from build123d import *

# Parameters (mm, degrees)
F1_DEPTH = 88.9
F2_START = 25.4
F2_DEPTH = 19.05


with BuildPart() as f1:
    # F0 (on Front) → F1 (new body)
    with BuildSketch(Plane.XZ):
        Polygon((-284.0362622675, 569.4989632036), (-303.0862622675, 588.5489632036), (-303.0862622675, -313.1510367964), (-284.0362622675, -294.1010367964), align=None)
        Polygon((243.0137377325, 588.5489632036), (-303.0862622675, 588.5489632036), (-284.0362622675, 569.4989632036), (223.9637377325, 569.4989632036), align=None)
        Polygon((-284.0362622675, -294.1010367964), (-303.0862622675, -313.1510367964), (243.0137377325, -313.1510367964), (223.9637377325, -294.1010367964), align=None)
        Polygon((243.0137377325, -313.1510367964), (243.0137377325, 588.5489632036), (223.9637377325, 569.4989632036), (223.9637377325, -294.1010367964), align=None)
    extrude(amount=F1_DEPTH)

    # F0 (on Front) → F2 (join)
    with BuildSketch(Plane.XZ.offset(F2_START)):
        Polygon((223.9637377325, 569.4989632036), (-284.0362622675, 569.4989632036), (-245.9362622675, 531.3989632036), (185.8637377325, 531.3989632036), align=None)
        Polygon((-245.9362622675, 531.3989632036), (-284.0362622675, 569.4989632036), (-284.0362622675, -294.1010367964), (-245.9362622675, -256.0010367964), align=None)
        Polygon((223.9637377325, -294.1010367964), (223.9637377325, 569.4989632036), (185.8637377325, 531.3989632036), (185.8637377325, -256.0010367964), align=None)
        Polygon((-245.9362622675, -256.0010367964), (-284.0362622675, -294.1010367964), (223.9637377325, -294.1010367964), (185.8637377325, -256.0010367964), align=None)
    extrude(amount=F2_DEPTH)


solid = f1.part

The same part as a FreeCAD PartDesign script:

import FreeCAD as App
import Part
import Sketcher
from FreeCAD import Vector
Q = App.Units.Quantity

doc = App.newDocument("Part")
body = doc.addObject("PartDesign::Body", "Body")

sketch1 = body.newObject("Sketcher::SketchObject", "Sketch")
sketch1.AttachmentSupport = (doc.getObject("XZ_Plane"), [""])
sketch1.MapMode = "FlatFace"
sketch1.addGeometry([
    Part.LineSegment(Vector(-303, 589, 0), Vector(-303, -313, 0)),
    Part.LineSegment(Vector(-303, -313, 0), Vector(243, -313, 0)),
    Part.LineSegment(Vector(243, -313, 0), Vector(243, 589, 0)),
    Part.LineSegment(Vector(243, 589, 0), Vector(-303, 589, 0)),
    Part.LineSegment(Vector(224, -294, 0), Vector(-284, -294, 0)),
    Part.LineSegment(Vector(-284, -294, 0), Vector(-284, 569, 0)),
    Part.LineSegment(Vector(-284, 569, 0), Vector(224, 569, 0)),
    Part.LineSegment(Vector(224, 569, 0), Vector(224, -294, 0)),
], False)
sketch1.addConstraint([
    Sketcher.Constraint("Coincident", 0, 2, 1, 1),
    Sketcher.Constraint("Coincident", 1, 2, 2, 1),
    Sketcher.Constraint("Coincident", 2, 2, 3, 1),
    Sketcher.Constraint("Coincident", 3, 2, 0, 1),
    Sketcher.Constraint("Coincident", 4, 2, 5, 1),
    Sketcher.Constraint("Coincident", 5, 2, 6, 1),
    Sketcher.Constraint("Coincident", 6, 2, 7, 1),
    Sketcher.Constraint("Coincident", 7, 2, 4, 1),
    Sketcher.Constraint("Vertical", 0),
    Sketcher.Constraint("Horizontal", 1),
    Sketcher.Constraint("Vertical", 2),
    Sketcher.Constraint("Horizontal", 3),
    Sketcher.Constraint("Horizontal", 4),
    Sketcher.Constraint("Vertical", 5),
    Sketcher.Constraint("Horizontal", 6),
    Sketcher.Constraint("Vertical", 7),
    Sketcher.Constraint("DistanceX", 4, 2, 4, 1, Q("20 in")),
    Sketcher.Constraint("DistanceY", 5, 1, 5, 2, Q("34 in")),
    Sketcher.Constraint("DistanceX", 1, 1, 1, 2, Q("21.5 in")),
    Sketcher.Constraint("DistanceY", 0, 2, 0, 1, Q("35.5 in")),
    Sketcher.Constraint("DistanceX", 0, 2, 4, 2, Q("0.75 in")),
    Sketcher.Constraint("DistanceY", 0, 2, 4, 2, Q("0.75 in")),
    Sketcher.Constraint("DistanceX", 0, 2, -1, 1, Q("303.086262 mm")),
    Sketcher.Constraint("DistanceY", 0, 2, -1, 1, Q("313.151037 mm")),
])
pad1 = body.newObject("PartDesign::Pad", "Pad")
pad1.Profile = sketch1
pad1.Length = Q("3.5 in")

sketch2 = body.newObject("Sketcher::SketchObject", "Sketch001")
sketch2.AttachmentSupport = (doc.getObject("XZ_Plane"), [""])
sketch2.MapMode = "FlatFace"
sketch2.AttachmentOffset = App.Placement(Vector(0, 0, 1 * 25.4), App.Rotation())
sketch2.addGeometry([
    Part.LineSegment(Vector(224, 569, 0), Vector(-284, 569, 0)),
    Part.LineSegment(Vector(-284, 569, 0), Vector(-284, -294, 0)),
    Part.LineSegment(Vector(-284, -294, 0), Vector(224, -294, 0)),
    Part.LineSegment(Vector(224, -294, 0), Vector(224, 569, 0)),
    Part.LineSegment(Vector(-246, -256, 0), Vector(-246, 531, 0)),
    Part.LineSegment(Vector(-246, 531, 0), Vector(186, 531, 0)),
    Part.LineSegment(Vector(186, 531, 0), Vector(186, -256, 0)),
    Part.LineSegment(Vector(186, -256, 0), Vector(-246, -256, 0)),
], False)
sketch2.addConstraint([
    Sketcher.Constraint("Coincident", 0, 2, 1, 1),
    Sketcher.Constraint("Coincident", 1, 2, 2, 1),
    Sketcher.Constraint("Coincident", 2, 2, 3, 1),
    Sketcher.Constraint("Coincident", 3, 2, 0, 1),
    Sketcher.Constraint("Coincident", 4, 2, 5, 1),
    Sketcher.Constraint("Coincident", 5, 2, 6, 1),
    Sketcher.Constraint("Coincident", 6, 2, 7, 1),
    Sketcher.Constraint("Coincident", 7, 2, 4, 1),
    Sketcher.Constraint("Horizontal", 0),
    Sketcher.Constraint("Vertical", 1),
    Sketcher.Constraint("Horizontal", 2),
    Sketcher.Constraint("Vertical", 3),
    Sketcher.Constraint("Vertical", 4),
    Sketcher.Constraint("Horizontal", 5),
    Sketcher.Constraint("Vertical", 6),
    Sketcher.Constraint("Horizontal", 7),
    Sketcher.Constraint("DistanceX", 0, 2, 0, 1, Q("20 in")),
    Sketcher.Constraint("DistanceX", 5, 1, 5, 2, Q("17 in")),
    Sketcher.Constraint("DistanceY", 1, 2, 1, 1, Q("34 in")),
    Sketcher.Constraint("DistanceY", 4, 1, 4, 2, Q("31 in")),
    Sketcher.Constraint("DistanceX", 0, 2, 4, 2, Q("1.5 in")),
    Sketcher.Constraint("DistanceY", 4, 2, 0, 2, Q("1.5 in")),
    Sketcher.Constraint("DistanceX", 0, 2, -1, 1, Q("284.036262 mm")),
    Sketcher.Constraint("DistanceY", -1, 1, 0, 2, Q("569.498963 mm")),
])
pad2 = body.newObject("PartDesign::Pad", "Pad001")
pad2.Profile = sketch2
pad2.Length = Q("0.75 in")

doc.recompute()
